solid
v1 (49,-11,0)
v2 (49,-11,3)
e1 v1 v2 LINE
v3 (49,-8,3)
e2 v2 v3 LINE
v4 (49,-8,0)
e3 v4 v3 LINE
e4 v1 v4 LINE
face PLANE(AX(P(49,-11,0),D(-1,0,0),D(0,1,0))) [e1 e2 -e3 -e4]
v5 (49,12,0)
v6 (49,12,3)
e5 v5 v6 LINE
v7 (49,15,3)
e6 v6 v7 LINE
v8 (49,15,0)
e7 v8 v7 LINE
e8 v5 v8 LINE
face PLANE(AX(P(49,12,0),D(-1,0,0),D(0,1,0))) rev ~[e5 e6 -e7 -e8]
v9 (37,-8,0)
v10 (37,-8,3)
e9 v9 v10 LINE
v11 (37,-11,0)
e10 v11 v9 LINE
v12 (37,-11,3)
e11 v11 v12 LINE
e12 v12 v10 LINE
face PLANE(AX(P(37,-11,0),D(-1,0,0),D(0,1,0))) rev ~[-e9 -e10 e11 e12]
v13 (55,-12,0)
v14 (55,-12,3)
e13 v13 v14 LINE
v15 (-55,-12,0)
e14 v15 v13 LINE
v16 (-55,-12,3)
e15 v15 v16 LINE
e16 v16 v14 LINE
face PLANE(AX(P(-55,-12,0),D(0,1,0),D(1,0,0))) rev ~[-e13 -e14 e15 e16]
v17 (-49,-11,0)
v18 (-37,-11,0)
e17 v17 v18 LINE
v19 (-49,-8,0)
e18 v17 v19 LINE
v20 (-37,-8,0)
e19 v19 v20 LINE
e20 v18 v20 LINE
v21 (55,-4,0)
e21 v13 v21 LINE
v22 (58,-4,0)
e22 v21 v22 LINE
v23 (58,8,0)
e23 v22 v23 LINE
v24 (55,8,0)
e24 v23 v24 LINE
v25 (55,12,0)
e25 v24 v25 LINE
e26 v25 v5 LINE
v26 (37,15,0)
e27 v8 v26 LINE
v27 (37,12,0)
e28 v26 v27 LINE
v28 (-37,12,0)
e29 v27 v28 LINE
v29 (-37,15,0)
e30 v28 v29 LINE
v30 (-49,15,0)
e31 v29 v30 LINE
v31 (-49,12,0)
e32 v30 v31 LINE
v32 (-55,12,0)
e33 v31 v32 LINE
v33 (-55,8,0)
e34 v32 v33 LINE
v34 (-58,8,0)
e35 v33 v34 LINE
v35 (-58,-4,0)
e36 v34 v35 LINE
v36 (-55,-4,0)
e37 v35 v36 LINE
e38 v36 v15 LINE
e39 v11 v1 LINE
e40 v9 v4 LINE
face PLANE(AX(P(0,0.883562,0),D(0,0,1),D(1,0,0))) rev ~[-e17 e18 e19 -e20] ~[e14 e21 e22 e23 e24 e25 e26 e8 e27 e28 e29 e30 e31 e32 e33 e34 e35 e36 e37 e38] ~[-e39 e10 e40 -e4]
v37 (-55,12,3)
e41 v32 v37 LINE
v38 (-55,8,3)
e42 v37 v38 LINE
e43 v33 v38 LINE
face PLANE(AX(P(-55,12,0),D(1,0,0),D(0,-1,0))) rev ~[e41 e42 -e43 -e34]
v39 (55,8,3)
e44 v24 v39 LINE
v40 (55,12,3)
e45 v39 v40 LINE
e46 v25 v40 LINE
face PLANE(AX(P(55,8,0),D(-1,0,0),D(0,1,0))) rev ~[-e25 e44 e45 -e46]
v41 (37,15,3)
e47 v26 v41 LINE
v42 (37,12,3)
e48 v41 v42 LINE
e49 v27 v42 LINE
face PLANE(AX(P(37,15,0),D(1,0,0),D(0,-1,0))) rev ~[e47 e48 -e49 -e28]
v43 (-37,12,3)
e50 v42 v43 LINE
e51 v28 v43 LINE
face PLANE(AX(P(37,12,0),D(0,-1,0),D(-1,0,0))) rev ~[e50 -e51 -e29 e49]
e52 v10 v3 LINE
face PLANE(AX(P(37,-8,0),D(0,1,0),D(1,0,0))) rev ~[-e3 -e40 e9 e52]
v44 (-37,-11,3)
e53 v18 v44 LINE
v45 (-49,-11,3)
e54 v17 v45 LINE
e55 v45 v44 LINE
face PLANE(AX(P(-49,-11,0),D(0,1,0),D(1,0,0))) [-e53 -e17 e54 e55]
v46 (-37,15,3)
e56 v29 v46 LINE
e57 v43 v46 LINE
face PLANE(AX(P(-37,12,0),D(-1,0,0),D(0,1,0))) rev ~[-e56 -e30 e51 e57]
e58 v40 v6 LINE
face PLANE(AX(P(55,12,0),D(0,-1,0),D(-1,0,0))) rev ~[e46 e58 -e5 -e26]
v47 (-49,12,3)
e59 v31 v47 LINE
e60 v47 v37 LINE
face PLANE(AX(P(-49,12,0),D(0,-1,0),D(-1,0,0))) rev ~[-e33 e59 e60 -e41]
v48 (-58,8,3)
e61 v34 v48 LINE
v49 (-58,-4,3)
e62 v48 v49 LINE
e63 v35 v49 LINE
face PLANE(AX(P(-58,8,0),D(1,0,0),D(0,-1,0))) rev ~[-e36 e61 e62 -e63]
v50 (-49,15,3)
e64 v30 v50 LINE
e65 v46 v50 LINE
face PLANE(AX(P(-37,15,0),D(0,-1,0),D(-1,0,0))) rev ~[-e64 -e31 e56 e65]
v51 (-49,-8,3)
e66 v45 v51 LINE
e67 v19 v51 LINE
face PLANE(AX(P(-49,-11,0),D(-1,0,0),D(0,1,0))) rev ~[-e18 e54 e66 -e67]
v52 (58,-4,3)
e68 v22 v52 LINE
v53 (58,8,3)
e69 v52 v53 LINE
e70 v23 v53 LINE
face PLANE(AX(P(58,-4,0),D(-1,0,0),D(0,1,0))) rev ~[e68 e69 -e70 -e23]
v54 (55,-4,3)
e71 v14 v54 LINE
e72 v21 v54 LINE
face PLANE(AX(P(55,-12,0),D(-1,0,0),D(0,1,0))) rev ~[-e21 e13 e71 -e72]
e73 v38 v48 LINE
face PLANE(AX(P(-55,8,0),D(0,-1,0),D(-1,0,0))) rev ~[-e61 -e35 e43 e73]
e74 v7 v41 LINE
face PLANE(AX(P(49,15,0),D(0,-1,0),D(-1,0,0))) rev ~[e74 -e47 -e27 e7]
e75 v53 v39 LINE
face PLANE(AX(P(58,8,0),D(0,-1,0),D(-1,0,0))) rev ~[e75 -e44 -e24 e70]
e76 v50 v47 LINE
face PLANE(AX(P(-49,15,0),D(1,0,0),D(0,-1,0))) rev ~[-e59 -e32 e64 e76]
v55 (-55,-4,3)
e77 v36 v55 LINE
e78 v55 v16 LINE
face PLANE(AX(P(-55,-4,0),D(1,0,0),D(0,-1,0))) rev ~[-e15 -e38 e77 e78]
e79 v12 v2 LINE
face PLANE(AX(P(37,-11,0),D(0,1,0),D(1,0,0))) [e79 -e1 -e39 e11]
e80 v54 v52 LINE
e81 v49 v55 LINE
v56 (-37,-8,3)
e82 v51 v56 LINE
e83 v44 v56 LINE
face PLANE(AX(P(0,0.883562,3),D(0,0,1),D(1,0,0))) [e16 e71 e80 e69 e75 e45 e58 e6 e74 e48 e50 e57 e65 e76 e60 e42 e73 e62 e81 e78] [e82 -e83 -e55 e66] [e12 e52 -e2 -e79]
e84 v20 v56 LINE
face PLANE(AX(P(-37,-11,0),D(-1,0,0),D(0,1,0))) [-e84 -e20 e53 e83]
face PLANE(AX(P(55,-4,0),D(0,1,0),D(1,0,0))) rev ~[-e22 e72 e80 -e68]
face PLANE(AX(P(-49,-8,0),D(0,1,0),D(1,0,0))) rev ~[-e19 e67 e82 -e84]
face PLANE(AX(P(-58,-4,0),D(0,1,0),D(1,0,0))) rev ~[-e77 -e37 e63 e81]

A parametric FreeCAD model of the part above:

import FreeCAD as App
import Part
import Sketcher

V = App.Vector

doc = App.newDocument("Part")
body = doc.addObject("PartDesign::Body", "Body")

sketch1 = body.newObject("Sketcher::SketchObject", "Sketch")
sketch1.AttachmentSupport = (doc.getObject("XY_Plane"), [""])
sketch1.MapMode = "FlatFace"
sketch1.addGeometry(Part.LineSegment(V(55, 8, 0), V(55, 12, 0)), False)
sketch1.addGeometry(Part.LineSegment(V(55, 12, 0), V(49, 12, 0)), False)
sketch1.addGeometry(Part.LineSegment(V(49, 12, 0), V(49, 15, 0)), False)
sketch1.addGeometry(Part.LineSegment(V(49, 15, 0), V(37, 15, 0)), False)
sketch1.addGeometry(Part.LineSegment(V(37, 15, 0), V(37, 12, 0)), False)
sketch1.addGeometry(Part.LineSegment(V(37, 12, 0), V(-37, 12, 0)), False)
sketch1.addGeometry(Part.LineSegment(V(-37, 12, 0), V(-37, 15, 0)), False)
sketch1.addGeometry(Part.LineSegment(V(-37, 15, 0), V(-49, 15, 0)), False)
sketch1.addGeometry(Part.LineSegment(V(-49, 15, 0), V(-49, 12, 0)), False)
sketch1.addGeometry(Part.LineSegment(V(-49, 12, 0), V(-55, 12, 0)), False)
sketch1.addGeometry(Part.LineSegment(V(-55, 12, 0), V(-55, 8, 0)), False)
sketch1.addGeometry(Part.LineSegment(V(-55, 8, 0), V(-58, 8, 0)), False)
sketch1.addGeometry(Part.LineSegment(V(-58, 8, 0), V(-58, -4, 0)), False)
sketch1.addGeometry(Part.LineSegment(V(-58, -4, 0), V(-55, -4, 0)), False)
sketch1.addGeometry(Part.LineSegment(V(-55, -4, 0), V(-55, -12, 0)), False)
sketch1.addGeometry(Part.LineSegment(V(-55, -12, 0), V(55, -12, 0)), False)
sketch1.addGeometry(Part.LineSegment(V(55, -12, 0), V(55, -4, 0)), False)
sketch1.addGeometry(Part.LineSegment(V(55, -4, 0), V(58, -4, 0)), False)
sketch1.addGeometry(Part.LineSegment(V(58, -4, 0), V(58, 8, 0)), False)
sketch1.addGeometry(Part.LineSegment(V(58, 8, 0), V(55, 8, 0)), False)
sketch1.addGeometry(Part.LineSegment(V(-37, -11, 0), V(-49, -11, 0)), False)
sketch1.addGeometry(Part.LineSegment(V(-49, -11, 0), V(-49, -8, 0)), False)
sketch1.addGeometry(Part.LineSegment(V(-49, -8, 0), V(-37, -8, 0)), False)
sketch1.addGeometry(Part.LineSegment(V(-37, -8, 0), V(-37, -11, 0)), False)
sketch1.addGeometry(Part.LineSegment(V(49, -11, 0), V(37, -11, 0)), False)
sketch1.addGeometry(Part.LineSegment(V(37, -11, 0), V(37, -8, 0)), False)
sketch1.addGeometry(Part.LineSegment(V(37, -8, 0), V(49, -8, 0)), False)
sketch1.addGeometry(Part.LineSegment(V(49, -8, 0), V(49, -11, 0)), False)
sketch1.addConstraint(Sketcher.Constraint("Coincident", 0, 2, 1, 1))
sketch1.addConstraint(Sketcher.Constraint("Coincident", 1, 2, 2, 1))
sketch1.addConstraint(Sketcher.Constraint("Coincident", 2, 2, 3, 1))
sketch1.addConstraint(Sketcher.Constraint("Coincident", 3, 2, 4, 1))
sketch1.addConstraint(Sketcher.Constraint("Coincident", 4, 2, 5, 1))
sketch1.addConstraint(Sketcher.Constraint("Coincident", 5, 2, 6, 1))
sketch1.addConstraint(Sketcher.Constraint("Coincident", 6, 2, 7, 1))
sketch1.addConstraint(Sketcher.Constraint("Coincident", 7, 2, 8, 1))
sketch1.addConstraint(Sketcher.Constraint("Coincident", 8, 2, 9, 1))
sketch1.addConstraint(Sketcher.Constraint("Coincident", 9, 2, 10, 1))
sketch1.addConstraint(Sketcher.Constraint("Coincident", 10, 2, 11, 1))
sketch1.addConstraint(Sketcher.Constraint("Coincident", 11, 2, 12, 1))
sketch1.addConstraint(Sketcher.Constraint("Coincident", 12, 2, 13, 1))
sketch1.addConstraint(Sketcher.Constraint("Coincident", 13, 2, 14, 1))
sketch1.addConstraint(Sketcher.Constraint("Coincident", 14, 2, 15, 1))
sketch1.addConstraint(Sketcher.Constraint("Coincident", 15, 2, 16, 1))
sketch1.addConstraint(Sketcher.Constraint("Coincident", 16, 2, 17, 1))
sketch1.addConstraint(Sketcher.Constraint("Coincident", 17, 2, 18, 1))
sketch1.addConstraint(Sketcher.Constraint("Coincident", 18, 2, 19, 1))
sketch1.addConstraint(Sketcher.Constraint("Coincident", 19, 2, 0, 1))
sketch1.addConstraint(Sketcher.Constraint("Coincident", 20, 2, 21, 1))
sketch1.addConstraint(Sketcher.Constraint("Coincident", 21, 2, 22, 1))
sketch1.addConstraint(Sketcher.Constraint("Coincident", 22, 2, 23, 1))
sketch1.addConstraint(Sketcher.Constraint("Coincident", 23, 2, 20, 1))
sketch1.addConstraint(Sketcher.Constraint("Coincident", 24, 2, 25, 1))
sketch1.addConstraint(Sketcher.Constraint("Coincident", 25, 2, 26, 1))
sketch1.addConstraint(Sketcher.Constraint("Coincident", 26, 2, 27, 1))
sketch1.addConstraint(Sketcher.Constraint("Coincident", 27, 2, 24, 1))
sketch1.addConstraint(Sketcher.Constraint("Vertical", 0))
sketch1.addConstraint(Sketcher.Constraint("Horizontal", 1))
sketch1.addConstraint(Sketcher.Constraint("Vertical", 2))
sketch1.addConstraint(Sketcher.Constraint("Horizontal", 3))
sketch1.addConstraint(Sketcher.Constraint("Vertical", 4))
sketch1.addConstraint(Sketcher.Constraint("Horizontal", 5))
sketch1.addConstraint(Sketcher.Constraint("Vertical", 6))
sketch1.addConstraint(Sketcher.Constraint("Horizontal", 7))
sketch1.addConstraint(Sketcher.Constraint("Vertical", 8))
sketch1.addConstraint(Sketcher.Constraint("Horizontal", 9))
sketch1.addConstraint(Sketcher.Constraint("Vertical", 10))
sketch1.addConstraint(Sketcher.Constraint("Horizontal", 11))
sketch1.addConstraint(Sketcher.Constraint("Vertical", 12))
sketch1.addConstraint(Sketcher.Constraint("Horizontal", 13))
sketch1.addConstraint(Sketcher.Constraint("Vertical", 14))
sketch1.addConstraint(Sketcher.Constraint("Horizontal", 15))
sketch1.addConstraint(Sketcher.Constraint("Vertical", 16))
sketch1.addConstraint(Sketcher.Constraint("Horizontal", 17))
sketch1.addConstraint(Sketcher.Constraint("Vertical", 18))
sketch1.addConstraint(Sketcher.Constraint("Horizontal", 19))
sketch1.addConstraint(Sketcher.Constraint("Horizontal", 20))
sketch1.addConstraint(Sketcher.Constraint("Vertical", 21))
sketch1.addConstraint(Sketcher.Constraint("Horizontal", 22))
sketch1.addConstraint(Sketcher.Constraint("Vertical", 23))
sketch1.addConstraint(Sketcher.Constraint("Horizontal", 24))
sketch1.addConstraint(Sketcher.Constraint("Vertical", 25))
sketch1.addConstraint(Sketcher.Constraint("Horizontal", 26))
sketch1.addConstraint(Sketcher.Constraint("Vertical", 27))
sketch1.addConstraint(Sketcher.Constraint("Symmetric", 0, 2, 14, 2, -1, 1))
sketch1.addConstraint(Sketcher.Constraint("Symmetric", 9, 2, 15, 2, -1, 1))
sketch1.addConstraint(Sketcher.Constraint("Symmetric", 3, 2, 6, 2, -2))
sketch1.addConstraint(Sketcher.Constraint("Symmetric", 13, 2, 16, 2, -2))
sketch1.addConstraint(Sketcher.Constraint("Symmetric", 11, 2, 18, 2, -2))
sketch1.addConstraint(Sketcher.Constraint("Symmetric", 23, 2, 24, 2, -2))
sketch1.addConstraint(Sketcher.Constraint("Symmetric", 21, 2, 26, 2, -2))
sketch1.addConstraint(Sketcher.Constraint("Horizontal", 1, 2, 4, 2))
sketch1.addConstraint(Sketcher.Constraint("Vertical", 8, 2, 20, 2))
sketch1.addConstraint(Sketcher.Constraint("Vertical", 6, 2, 22, 2))
sketch1.addConstraint(Sketcher.Constraint("Vertical", 2, 2, 26, 2))
sketch1.addConstraint(Sketcher.Constraint("Equal", 19, 2))
sketch1.addConstraint(Sketcher.Constraint("Equal", 26, 12))
sketch1.addConstraint(Sketcher.Constraint("Equal", 8, 21))
sketch1.addConstraint(Sketcher.Constraint("DistanceX", 1, 2, 1, 1, 6.0))
sketch1.addConstraint(Sketcher.Constraint("DistanceX", 3, 2, 3, 1, 12.0))
sketch1.addConstraint(Sketcher.Constraint("DistanceX", 5, 2, 5, 1, 74.0))
sketch1.addConstraint(Sketcher.Constraint("DistanceX", 11, 2, 11, 1, 3.0))
sketch1.addConstraint(Sketcher.Constraint("DistanceY", 0, 1, 0, 2, 4.0))
sketch1.addConstraint(Sketcher.Constraint("DistanceY", 14, 2, 14, 1, 8.0))
sketch1.addConstraint(Sketcher.Constraint("DistanceY", 20, 2, -1, 1, 11.0))
pad1 = body.newObject("PartDesign::Pad", "Pad")
pad1.Profile = sketch1
pad1.Length = 3

doc.recompute()
